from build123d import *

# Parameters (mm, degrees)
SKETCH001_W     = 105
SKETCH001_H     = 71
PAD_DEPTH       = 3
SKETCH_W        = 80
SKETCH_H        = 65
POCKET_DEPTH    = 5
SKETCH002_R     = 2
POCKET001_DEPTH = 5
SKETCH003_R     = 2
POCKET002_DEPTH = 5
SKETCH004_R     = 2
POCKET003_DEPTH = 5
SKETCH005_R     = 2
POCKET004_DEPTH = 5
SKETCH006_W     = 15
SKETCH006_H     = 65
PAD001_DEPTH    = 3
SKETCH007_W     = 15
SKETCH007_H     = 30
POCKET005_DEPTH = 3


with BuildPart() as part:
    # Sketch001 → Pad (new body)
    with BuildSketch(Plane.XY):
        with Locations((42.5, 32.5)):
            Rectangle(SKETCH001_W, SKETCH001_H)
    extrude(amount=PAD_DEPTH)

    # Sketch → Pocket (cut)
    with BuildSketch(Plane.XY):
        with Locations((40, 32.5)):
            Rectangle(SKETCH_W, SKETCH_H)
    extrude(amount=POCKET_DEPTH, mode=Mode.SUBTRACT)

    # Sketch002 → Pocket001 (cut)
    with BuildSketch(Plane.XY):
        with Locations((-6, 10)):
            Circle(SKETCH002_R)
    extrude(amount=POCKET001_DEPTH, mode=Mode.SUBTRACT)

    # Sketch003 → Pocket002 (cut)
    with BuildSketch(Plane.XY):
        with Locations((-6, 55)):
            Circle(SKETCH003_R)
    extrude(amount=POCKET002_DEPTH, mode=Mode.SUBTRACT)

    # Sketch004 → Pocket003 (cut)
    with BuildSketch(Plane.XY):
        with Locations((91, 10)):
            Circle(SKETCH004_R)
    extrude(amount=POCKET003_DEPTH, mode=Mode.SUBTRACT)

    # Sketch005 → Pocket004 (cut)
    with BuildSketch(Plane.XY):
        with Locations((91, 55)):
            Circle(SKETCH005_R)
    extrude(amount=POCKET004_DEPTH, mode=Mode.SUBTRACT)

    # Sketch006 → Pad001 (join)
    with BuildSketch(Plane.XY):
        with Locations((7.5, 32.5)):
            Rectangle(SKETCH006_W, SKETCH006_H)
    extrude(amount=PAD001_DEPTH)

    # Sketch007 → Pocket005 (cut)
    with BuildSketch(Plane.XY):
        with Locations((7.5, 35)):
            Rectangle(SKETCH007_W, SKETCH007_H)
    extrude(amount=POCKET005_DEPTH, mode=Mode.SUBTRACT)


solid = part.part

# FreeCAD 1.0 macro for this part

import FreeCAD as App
import Part
import Sketcher

V = App.Vector

doc = App.newDocument("Part")
body = doc.addObject("PartDesign::Body", "Body")

sketch1 = body.newObject("Sketcher::SketchObject", "Sketch")
sketch1.AttachmentSupport = (doc.getObject("XY_Plane"), [""])
sketch1.MapMode = "FlatFace"
sketch1.addGeometry(Part.LineSegment(V(-10, 68, 0), V(-10, -3, 0)), False)
sketch1.addGeometry(Part.LineSegment(V(-10, -3, 0), V(95, -3, 0)), False)
sketch1.addGeometry(Part.LineSegment(V(95, -3, 0), V(95, 68, 0)), False)
sketch1.addGeometry(Part.LineSegment(V(95, 68, 0), V(-10, 68, 0)), False)
sketch1.addConstraint(Sketcher.Constraint("Coincident", 0, 2, 1, 1))
sketch1.addConstraint(Sketcher.Constraint("Coincident", 1, 2, 2, 1))
sketch1.addConstraint(Sketcher.Constraint("Coincident", 2, 2, 3, 1))
sketch1.addConstraint(Sketcher.Constraint("Coincident", 3, 2, 0, 1))
sketch1.addConstraint(Sketcher.Constraint("Vertical", 0))
sketch1.addConstraint(Sketcher.Constraint("Horizontal", 1))
sketch1.addConstraint(Sketcher.Constraint("Vertical", 2))
sketch1.addConstraint(Sketcher.Constraint("Horizontal", 3))
sketch1.addConstraint(Sketcher.Constraint("DistanceX", 1, 1, 1, 2, 105.0))
sketch1.addConstraint(Sketcher.Constraint("DistanceY", 0, 2, 0, 1, 71.0))
sketch1.addConstraint(Sketcher.Constraint("DistanceX", 0, 2, -1, 1, 10.0))
sketch1.addConstraint(Sketcher.Constraint("DistanceY", 0, 2, -1, 1, 3.0))
pad1 = body.newObject("PartDesign::Pad", "Pad")
pad1.Profile = sketch1
pad1.Length = 3

sketch2 = body.newObject("Sketcher::SketchObject", "Sketch001")
sketch2.AttachmentSupport = (doc.getObject("XY_Plane"), [""])
sketch2.MapMode = "FlatFace"
sketch2.addGeometry(Part.LineSegment(V(0, 65, 0), V(0, 0, 0)), False)
sketch2.addGeometry(Part.LineSegment(V(0, 0, 0), V(80, 0, 0)), False)
sketch2.addGeometry(Part.LineSegment(V(80, 0, 0), V(80, 65, 0)), False)
sketch2.addGeometry(Part.LineSegment(V(80, 65, 0), V(0, 65, 0)), False)
sketch2.addConstraint(Sketcher.Constraint("Coincident", 0, 2, 1, 1))
sketch2.addConstraint(Sketcher.Constraint("Coincident", 1, 2, 2, 1))
sketch2.addConstraint(Sketcher.Constraint("Coincident", 2, 2, 3, 1))
sketch2.addConstraint(Sketcher.Constraint("Coincident", 3, 2, 0, 1))
sketch2.addConstraint(Sketcher.Constraint("Vertical", 0))
sketch2.addConstraint(Sketcher.Constraint("Horizontal", 1))
sketch2.addConstraint(Sketcher.Constraint("Vertical", 2))
sketch2.addConstraint(Sketcher.Constraint("Horizontal", 3))
sketch2.addConstraint(Sketcher.Constraint("Coincident", 0, 2, -1, 1))
sketch2.addConstraint(Sketcher.Constraint("DistanceX", 1, 1, 1, 2, 80.0))
sketch2.addConstraint(Sketcher.Constraint("DistanceY", 0, 2, 0, 1, 65.0))
pocket1 = body.newObject("PartDesign::Pocket", "Pocket")
pocket1.Profile = sketch2
pocket1.Length = 5
pocket1.Reversed = True

sketch3 = body.newObject("Sketcher::SketchObject", "Sketch002")
sketch3.AttachmentSupport = (doc.getObject("XY_Plane"), [""])
sketch3.MapMode = "FlatFace"
sketch3.addGeometry(Part.Circle(V(-6, 10, 0), V(0, 0, 1), 2), False)
sketch3.addConstraint(Sketcher.Constraint("Diameter", 0, 4.0))
sketch3.addConstraint(Sketcher.Constraint("DistanceX", 0, 3, -1, 1, 6.0))
sketch3.addConstraint(Sketcher.Constraint("DistanceY", -1, 1, 0, 3, 10.0))
pocket2 = body.newObject("PartDesign::Pocket", "Pocket001")
pocket2.Profile = sketch3
pocket2.Length = 5
pocket2.Reversed = True

sketch4 = body.newObject("Sketcher::SketchObject", "Sketch003")
sketch4.AttachmentSupport = (doc.getObject("XY_Plane"), [""])
sketch4.MapMode = "FlatFace"
sketch4.addGeometry(Part.Circle(V(-6, 55, 0), V(0, 0, 1), 2), False)
sketch4.addConstraint(Sketcher.Constraint("Diameter", 0, 4.0))
sketch4.addConstraint(Sketcher.Constraint("DistanceX", 0, 3, -1, 1, 6.0))
sketch4.addConstraint(Sketcher.Constraint("DistanceY", -1, 1, 0, 3, 55.0))
pocket3 = body.newObject("PartDesign::Pocket", "Pocket002")
pocket3.Profile = sketch4
pocket3.Length = 5
pocket3.Reversed = True

sketch5 = body.newObject("Sketcher::SketchObject", "Sketch004")
sketch5.AttachmentSupport = (doc.getObject("XY_Plane"), [""])
sketch5.MapMode = "FlatFace"
sketch5.addGeometry(Part.Circle(V(91, 10, 0), V(0, 0, 1), 2), False)
sketch5.addConstraint(Sketcher.Constraint("Diameter", 0, 4.0))
sketch5.addConstraint(Sketcher.Constraint("DistanceX", -1, 1, 0, 3, 91.0))
sketch5.addConstraint(Sketcher.Constraint("DistanceY", -1, 1, 0, 3, 10.0))
pocket4 = body.newObject("PartDesign::Pocket", "Pocket003")
pocket4.Profile = sketch5
pocket4.Length = 5
pocket4.Reversed = True

sketch6 = body.newObject("Sketcher::SketchObject", "Sketch005")
sketch6.AttachmentSupport = (doc.getObject("XY_Plane"), [""])
sketch6.MapMode = "FlatFace"
sketch6.addGeometry(Part.Circle(V(91, 55, 0), V(0, 0, 1), 2), False)
sketch6.addConstraint(Sketcher.Constraint("Diameter", 0, 4.0))
sketch6.addConstraint(Sketcher.Constraint("DistanceX", -1, 1, 0, 3, 91.0))
sketch6.addConstraint(Sketcher.Constraint("DistanceY", -1, 1, 0, 3, 55.0))
pocket5 = body.newObject("PartDesign::Pocket", "Pocket004")
pocket5.Profile = sketch6
pocket5.Length = 5
pocket5.Reversed = True

sketch7 = body.newObject("Sketcher::SketchObject", "Sketch006")
sketch7.AttachmentSupport = (doc.getObject("XY_Plane"), [""])
sketch7.MapMode = "FlatFace"
sketch7.addGeometry(Part.LineSegment(V(0, 65, 0), V(0, 0, 0)), False)
sketch7.addGeometry(Part.LineSegment(V(0, 0, 0), V(15, 0, 0)), False)
sketch7.addGeometry(Part.LineSegment(V(15, 0, 0), V(15, 65, 0)), False)
sketch7.addGeometry(Part.LineSegment(V(15, 65, 0), V(0, 65, 0)), False)
sketch7.addConstraint(Sketcher.Constraint("Coincident", 0, 2, 1, 1))
sketch7.addConstraint(Sketcher.Constraint("Coincident", 1, 2, 2, 1))
sketch7.addConstraint(Sketcher.Constraint("Coincident", 2, 2, 3, 1))
sketch7.addConstraint(Sketcher.Constraint("Coincident", 3, 2, 0, 1))
sketch7.addConstraint(Sketcher.Constraint("Vertical", 0))
sketch7.addConstraint(Sketcher.Constraint("Horizontal", 1))
sketch7.addConstraint(Sketcher.Constraint("Vertical", 2))
sketch7.addConstraint(Sketcher.Constraint("Horizontal", 3))
sketch7.addConstraint(Sketcher.Constraint("Coincident", 0, 2, -1, 1))
sketch7.addConstraint(Sketcher.Constraint("DistanceX", 1, 1, 1, 2, 15.0))
sketch7.addConstraint(Sketcher.Constraint("DistanceY", 0, 2, 0, 1, 65.0))
pad2 = body.newObject("PartDesign::Pad", "Pad001")
pad2.Profile = sketch7
pad2.Length = 3

sketch8 = body.newObject("Sketcher::SketchObject", "Sketch007")
sketch8.AttachmentSupport = (doc.getObject("XY_Plane"), [""])
sketch8.MapMode = "FlatFace"
sketch8.addGeometry(Part.LineSegment(V(0, 50, 0), V(0, 20, 0)), False)
sketch8.addGeometry(Part.LineSegment(V(0, 20, 0), V(15, 20, 0)), False)
sketch8.addGeometry(Part.LineSegment(V(15, 20, 0), V(15, 50, 0)), False)
sketch8.addGeometry(Part.LineSegment(V(15, 50, 0), V(0, 50, 0)), False)
sketch8.addConstraint(Sketcher.Constraint("Coincident", 0, 2, 1, 1))
sketch8.addConstraint(Sketcher.Constraint("Coincident", 1, 2, 2, 1))
sketch8.addConstraint(Sketcher.Constraint("Coincident", 2, 2, 3, 1))
sketch8.addConstraint(Sketcher.Constraint("Coincident", 3, 2, 0, 1))
sketch8.addConstraint(Sketcher.Constraint("Vertical", 0))
sketch8.addConstraint(Sketcher.Constraint("Horizontal", 1))
sketch8.addConstraint(Sketcher.Constraint("Vertical", 2))
sketch8.addConstraint(Sketcher.Constraint("Horizontal", 3))
sketch8.addConstraint(Sketcher.Constraint("PointOnObject", 0, 2, -2))
sketch8.addConstraint(Sketcher.Constraint("DistanceX", 1, 1, 1, 2, 15.0))
sketch8.addConstraint(Sketcher.Constraint("DistanceY", 0, 2, 0, 1, 30.0))
sketch8.addConstraint(Sketcher.Constraint("DistanceY", -1, 1, 0, 2, 20.0))
pocket6 = body.newObject("PartDesign::Pocket", "Pocket005")
pocket6.Profile = sketch8
pocket6.Length = 3
pocket6.Reversed = True

doc.recompute()
